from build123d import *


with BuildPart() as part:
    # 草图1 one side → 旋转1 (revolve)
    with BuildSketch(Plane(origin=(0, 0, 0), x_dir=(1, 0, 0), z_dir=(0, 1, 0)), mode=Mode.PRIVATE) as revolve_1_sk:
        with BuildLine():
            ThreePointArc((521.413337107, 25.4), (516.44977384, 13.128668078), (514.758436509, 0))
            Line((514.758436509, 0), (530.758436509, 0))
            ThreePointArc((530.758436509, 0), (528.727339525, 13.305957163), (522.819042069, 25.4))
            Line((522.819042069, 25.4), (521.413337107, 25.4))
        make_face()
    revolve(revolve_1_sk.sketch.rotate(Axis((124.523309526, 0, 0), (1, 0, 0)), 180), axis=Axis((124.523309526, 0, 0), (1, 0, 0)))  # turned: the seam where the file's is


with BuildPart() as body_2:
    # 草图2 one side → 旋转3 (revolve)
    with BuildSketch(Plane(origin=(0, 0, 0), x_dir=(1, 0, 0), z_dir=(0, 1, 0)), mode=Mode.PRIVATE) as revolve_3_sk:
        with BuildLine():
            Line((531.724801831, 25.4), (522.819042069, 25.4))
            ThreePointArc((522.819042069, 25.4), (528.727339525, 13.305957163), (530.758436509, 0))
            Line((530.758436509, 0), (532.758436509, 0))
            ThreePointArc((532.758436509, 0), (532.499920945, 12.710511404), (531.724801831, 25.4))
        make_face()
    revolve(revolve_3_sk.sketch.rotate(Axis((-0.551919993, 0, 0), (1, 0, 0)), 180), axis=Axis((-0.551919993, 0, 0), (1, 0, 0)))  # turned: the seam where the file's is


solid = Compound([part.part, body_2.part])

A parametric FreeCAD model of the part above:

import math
import FreeCAD as App
import Part
import Sketcher

V = App.Vector
Q = App.Units.Quantity

doc = App.newDocument("Part")
params = doc.addObject("Spreadsheet::Sheet", "Params")
for row, (alias, value) in enumerate([
    ("sketch1_radius", "51.8 mm"),
    ("sketch1_radius2", "44.6 mm"),
    ("sketch1_width", "16 mm"),
    ("revolution_angle", "360 deg"),
    ("sketch2_radius", "44.6 mm"),
    ("sketch2_radius2", "312.6 mm"),
    ("sketch2_width", "2 mm"),
    ("revolution2_angle", "360 deg"),
], start=1):
    params.set(f"A{row}", alias)
    params.set(f"B{row}", "=" + value)
    params.setAlias(f"B{row}", alias)

body = doc.addObject("PartDesign::Body", "Body")

# Sketch on XZ plane
sketch1 = body.newObject("Sketcher::SketchObject", "Sketch")
sketch1.AttachmentSupport = (doc.getObject("XZ_Plane"), [""])
sketch1.MapMode = "FlatFace"
sketch1.addGeometry([
    Part.ArcOfCircle(Part.Circle(V(566.6, 0, 0), V(0, 0, 1), 51.8), math.radians(-180), math.radians(-151)),
    Part.LineSegment(V(514.8, 0, 0), V(530.8, 0, 0)),
    Part.ArcOfCircle(Part.Circle(V(486.2, 0, 0), V(0, 0, 1), 44.6), math.radians(-35), math.radians(0)),
    Part.LineSegment(V(522.8, -25.4, 0), V(521.4, -25.4, 0)),
], False)
sketch1.addConstraint([
    Sketcher.Constraint("Coincident", 0, 1, 1, 1),
    Sketcher.Constraint("Coincident", 1, 2, 2, 2),
    Sketcher.Constraint("Coincident", 2, 1, 3, 1),
    Sketcher.Constraint("Coincident", 3, 2, 0, 2),
    Sketcher.Constraint("Horizontal", 1),
    Sketcher.Constraint("Horizontal", 3),
    Sketcher.Constraint("PointOnObject", 0, 3, -1),
    Sketcher.Constraint("PointOnObject", 2, 3, -1),
    Sketcher.Constraint("PointOnObject", 0, 1, -1),
    Sketcher.Constraint("Radius", 0, Q("51.8 mm")),
    Sketcher.Constraint("Radius", 2, Q("44.6 mm")),
    Sketcher.Constraint("DistanceX", 1, 1, 1, 2, Q("16 mm")),
    Sketcher.Constraint("DistanceY", 2, 1, -1, 1, Q("25.4 mm")),
    Sketcher.Constraint("DistanceX", -1, 1, 0, 3, Q("566.558437 mm")),
])
sketch1.setExpression("Constraints[9]", "Params.sketch1_radius")
sketch1.setExpression("Constraints[10]", "Params.sketch1_radius2")
sketch1.setExpression("Constraints[11]", "Params.sketch1_width")
revolution = body.newObject("PartDesign::Revolution", "Revolution")
revolution.Profile = sketch1
revolution.ReferenceAxis = (sketch1, ["H_Axis"])
revolution.setExpression("Angle", "Params.revolution_angle")
body2 = doc.addObject("PartDesign::Body", "Body001")

# Sketch on XZ plane
sketch2 = body2.newObject("Sketcher::SketchObject", "Sketch001")
sketch2.AttachmentSupport = (doc.getObject("XZ_Plane001"), [""])
sketch2.MapMode = "FlatFace"
sketch2.addGeometry([
    Part.LineSegment(V(531.7, -25.4, 0), V(522.8, -25.4, 0)),
    Part.ArcOfCircle(Part.Circle(V(486.2, 0, 0), V(0, 0, 1), 44.6), math.radians(-35), math.radians(0)),
    Part.LineSegment(V(530.8, 0, 0), V(532.8, 0, 0)),
    Part.ArcOfCircle(Part.Circle(V(220.2, 0, 0), V(0, 0, 1), 312.6), math.radians(-4.66), math.radians(0)),
], False)
sketch2.addConstraint([
    Sketcher.Constraint("Coincident", 0, 2, 1, 1),
    Sketcher.Constraint("Coincident", 1, 2, 2, 1),
    Sketcher.Constraint("Coincident", 2, 2, 3, 2),
    Sketcher.Constraint("Coincident", 3, 1, 0, 1),
    Sketcher.Constraint("Horizontal", 0),
    Sketcher.Constraint("Horizontal", 2),
    Sketcher.Constraint("PointOnObject", 1, 3, -1),
    Sketcher.Constraint("PointOnObject", 3, 3, -1),
    Sketcher.Constraint("PointOnObject", 1, 2, -1),
    Sketcher.Constraint("Radius", 1, Q("44.6 mm")),
    Sketcher.Constraint("Radius", 3, Q("312.6 mm")),
    Sketcher.Constraint("DistanceX", 2, 1, 2, 2, Q("2 mm")),
    Sketcher.Constraint("DistanceY", 0, 2, -1, 1, Q("25.4 mm")),
    Sketcher.Constraint("DistanceX", -1, 1, 3, 1, Q("531.724802 mm")),
])
sketch2.setExpression("Constraints[9]", "Params.sketch2_radius")
sketch2.setExpression("Constraints[10]", "Params.sketch2_radius2")
sketch2.setExpression("Constraints[11]", "Params.sketch2_width")
revolution2 = body2.newObject("PartDesign::Revolution", "Revolution001")
revolution2.Profile = sketch2
revolution2.ReferenceAxis = (sketch2, ["H_Axis"])
revolution2.setExpression("Angle", "Params.revolution2_angle")

doc.recompute()
